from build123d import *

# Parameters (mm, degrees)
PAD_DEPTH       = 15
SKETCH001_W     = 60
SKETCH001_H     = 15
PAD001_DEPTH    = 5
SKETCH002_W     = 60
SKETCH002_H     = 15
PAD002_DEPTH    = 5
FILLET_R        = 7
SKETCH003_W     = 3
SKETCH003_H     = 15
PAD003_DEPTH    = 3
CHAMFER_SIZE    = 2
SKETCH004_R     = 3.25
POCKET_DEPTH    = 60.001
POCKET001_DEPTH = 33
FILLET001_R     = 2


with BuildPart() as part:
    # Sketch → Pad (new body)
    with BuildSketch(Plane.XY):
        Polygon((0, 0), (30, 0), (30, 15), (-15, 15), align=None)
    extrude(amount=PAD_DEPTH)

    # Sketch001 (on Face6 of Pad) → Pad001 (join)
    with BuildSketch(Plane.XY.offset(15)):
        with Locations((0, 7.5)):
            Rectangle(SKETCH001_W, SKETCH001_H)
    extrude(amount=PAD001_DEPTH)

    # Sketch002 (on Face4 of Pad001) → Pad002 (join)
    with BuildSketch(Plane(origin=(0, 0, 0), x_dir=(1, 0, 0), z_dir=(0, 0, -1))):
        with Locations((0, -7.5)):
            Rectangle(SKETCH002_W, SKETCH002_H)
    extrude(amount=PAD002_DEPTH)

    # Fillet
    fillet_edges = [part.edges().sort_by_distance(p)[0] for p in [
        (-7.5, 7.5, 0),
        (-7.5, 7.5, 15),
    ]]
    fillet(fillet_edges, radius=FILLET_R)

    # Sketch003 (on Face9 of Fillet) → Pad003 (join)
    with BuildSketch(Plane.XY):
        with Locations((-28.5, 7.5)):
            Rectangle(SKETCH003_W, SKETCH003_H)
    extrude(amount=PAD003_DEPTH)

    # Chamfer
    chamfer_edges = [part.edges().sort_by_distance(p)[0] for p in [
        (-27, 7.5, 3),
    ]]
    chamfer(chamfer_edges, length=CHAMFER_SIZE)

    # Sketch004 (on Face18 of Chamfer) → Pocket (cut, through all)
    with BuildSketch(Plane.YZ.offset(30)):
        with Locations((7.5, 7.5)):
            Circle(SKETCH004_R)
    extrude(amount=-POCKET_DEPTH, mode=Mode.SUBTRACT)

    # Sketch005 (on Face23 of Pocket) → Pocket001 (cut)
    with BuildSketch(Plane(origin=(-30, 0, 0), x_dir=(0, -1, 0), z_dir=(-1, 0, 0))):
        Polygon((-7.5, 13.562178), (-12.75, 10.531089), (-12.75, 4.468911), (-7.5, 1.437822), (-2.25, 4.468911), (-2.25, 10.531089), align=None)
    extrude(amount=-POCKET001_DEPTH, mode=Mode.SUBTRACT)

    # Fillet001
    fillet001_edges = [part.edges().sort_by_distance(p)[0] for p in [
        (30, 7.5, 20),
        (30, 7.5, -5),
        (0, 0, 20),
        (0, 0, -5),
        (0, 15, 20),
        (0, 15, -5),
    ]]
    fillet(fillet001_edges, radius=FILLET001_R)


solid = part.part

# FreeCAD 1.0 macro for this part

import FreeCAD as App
import Part
import Sketcher

V = App.Vector
Q = App.Units.Quantity


def edges_at(feature, points):
    """Names of the edges that pass closest to the given points."""
    edges = feature.Shape.Edges
    near = lambda p: min(range(len(edges)), key=lambda i: edges[i].distToShape(Part.Vertex(*p))[0])
    return sorted({f"Edge{near(p) + 1}" for p in points})

doc = App.newDocument("Part")
body = doc.addObject("PartDesign::Body", "Body")

# Sketch on XY plane
sketch1 = doc.addObject("Sketcher::SketchObject", "Sketch")
body.addObject(sketch1)
sketch1.AttachmentSupport = (doc.XY_Plane, [""])
sketch1.MapMode = "FlatFace"
sketch1.addGeometry([
    Part.LineSegment(V(0, 0, 0), V(30, 0, 0)),
    Part.LineSegment(V(30, 0, 0), V(30, 15, 0)),
    Part.LineSegment(V(30, 15, 0), V(-15, 15, 0)),
    Part.LineSegment(V(-15, 15, 0), V(0, 0, 0)),
], False)
sketch1.addConstraint([
    Sketcher.Constraint("Coincident", 0, 2, 1, 1),
    Sketcher.Constraint("Coincident", 1, 2, 2, 1),
    Sketcher.Constraint("Coincident", 2, 2, 3, 1),
    Sketcher.Constraint("Coincident", 3, 2, 0, 1),
    Sketcher.Constraint("Horizontal", 0),
    Sketcher.Constraint("Vertical", 1),
    Sketcher.Constraint("Horizontal", 2),
    Sketcher.Constraint("Coincident", 3, 2, -1, 1),
    Sketcher.Constraint("DistanceX", 0, 1, 0, 2, 30.0),
    Sketcher.Constraint("DistanceX", 2, 2, 2, 1, 45.0),
    Sketcher.Constraint("DistanceY", 1, 1, 1, 2, 15.0),
])
pad1 = doc.addObject("PartDesign::Pad", "Pad")
body.addObject(pad1)
pad1.Profile = sketch1
pad1.Length = 15

# Sketch on XY plane
sketch2 = doc.addObject("Sketcher::SketchObject", "Sketch001")
body.addObject(sketch2)
sketch2.AttachmentSupport = (doc.XY_Plane, [""])
sketch2.MapMode = "FlatFace"
sketch2.AttachmentOffset = App.Placement(V(0, 0, 15), App.Rotation())
sketch2.addGeometry([
    Part.LineSegment(V(-30, 15, 0), V(-30, 0, 0)),
    Part.LineSegment(V(-30, 0, 0), V(30, 0, 0)),
    Part.LineSegment(V(30, 0, 0), V(30, 15, 0)),
    Part.LineSegment(V(30, 15, 0), V(-30, 15, 0)),
], False)
sketch2.addConstraint([
    Sketcher.Constraint("Coincident", 0, 2, 1, 1),
    Sketcher.Constraint("Coincident", 1, 2, 2, 1),
    Sketcher.Constraint("Coincident", 2, 2, 3, 1),
    Sketcher.Constraint("Coincident", 3, 2, 0, 1),
    Sketcher.Constraint("Vertical", 0),
    Sketcher.Constraint("Horizontal", 1),
    Sketcher.Constraint("Vertical", 2),
    Sketcher.Constraint("Horizontal", 3),
    Sketcher.Constraint("Symmetric", 0, 2, 1, 2, -1, 1),
    Sketcher.Constraint("DistanceX", 1, 1, 1, 2, 60.0),
    Sketcher.Constraint("DistanceY", 0, 2, 0, 1, 15.0),
])
pad2 = doc.addObject("PartDesign::Pad", "Pad001")
body.addObject(pad2)
pad2.Profile = sketch2
pad2.Length = 5

# Sketch on XY plane
sketch3 = doc.addObject("Sketcher::SketchObject", "Sketch002")
body.addObject(sketch3)
sketch3.AttachmentSupport = (doc.XY_Plane, [""])
sketch3.MapMode = "FlatFace"
sketch3.addGeometry([
    Part.LineSegment(V(-30, 0, 0), V(-30, 15, 0)),
    Part.LineSegment(V(-30, 15, 0), V(30, 15, 0)),
    Part.LineSegment(V(30, 15, 0), V(30, 0, 0)),
    Part.LineSegment(V(30, 0, 0), V(-30, 0, 0)),
], False)
sketch3.addConstraint([
    Sketcher.Constraint("Coincident", 0, 2, 1, 1),
    Sketcher.Constraint("Coincident", 1, 2, 2, 1),
    Sketcher.Constraint("Coincident", 2, 2, 3, 1),
    Sketcher.Constraint("Coincident", 3, 2, 0, 1),
    Sketcher.Constraint("Vertical", 0),
    Sketcher.Constraint("Horizontal", 1),
    Sketcher.Constraint("Vertical", 2),
    Sketcher.Constraint("Horizontal", 3),
    Sketcher.Constraint("Symmetric", 2, 2, 3, 2, -1, 1),
    Sketcher.Constraint("DistanceX", 1, 1, 1, 2, 60.0),
    Sketcher.Constraint("DistanceY", 0, 1, 0, 2, 15.0),
])
pad3 = doc.addObject("PartDesign::Pad", "Pad002")
body.addObject(pad3)
pad3.Profile = sketch3
pad3.Length = 5
pad3.Reversed = True
doc.recompute()

fillet = doc.addObject("PartDesign::Fillet", "Fillet")
body.addObject(fillet)
fillet.Base = (pad3, edges_at(pad3, [(-7.5, 7.5, 0), (-7.5, 7.5, 15)]))
fillet.Radius = 7

# Sketch on XY plane
sketch4 = doc.addObject("Sketcher::SketchObject", "Sketch003")
body.addObject(sketch4)
sketch4.AttachmentSupport = (doc.XY_Plane, [""])
sketch4.MapMode = "FlatFace"
sketch4.addGeometry([
    Part.LineSegment(V(-30, 15, 0), V(-30, 0, 0)),
    Part.LineSegment(V(-30, 0, 0), V(-27, 0, 0)),
    Part.LineSegment(V(-27, 0, 0), V(-27, 15, 0)),
    Part.LineSegment(V(-27, 15, 0), V(-30, 15, 0)),
], False)
sketch4.addConstraint([
    Sketcher.Constraint("Coincident", 0, 2, 1, 1),
    Sketcher.Constraint("Coincident", 1, 2, 2, 1),
    Sketcher.Constraint("Coincident", 2, 2, 3, 1),
    Sketcher.Constraint("Coincident", 3, 2, 0, 1),
    Sketcher.Constraint("Vertical", 0),
    Sketcher.Constraint("Horizontal", 1),
    Sketcher.Constraint("Vertical", 2),
    Sketcher.Constraint("Horizontal", 3),
    Sketcher.Constraint("PointOnObject", 0, 2, -1),
    Sketcher.Constraint("DistanceX", 1, 1, 1, 2, 3.0),
    Sketcher.Constraint("DistanceY", 0, 2, 0, 1, 15.0),
    Sketcher.Constraint("DistanceX", 0, 2, -1, 1, 30.0),
])
pad4 = doc.addObject("PartDesign::Pad", "Pad003")
body.addObject(pad4)
pad4.Profile = sketch4
pad4.Length = 3
doc.recompute()

chamfer = doc.addObject("PartDesign::Chamfer", "Chamfer")
body.addObject(chamfer)
chamfer.Base = (pad4, edges_at(pad4, [(-27, 7.5, 3)]))
chamfer.Size = 2

# Sketch on YZ plane
sketch5 = doc.addObject("Sketcher::SketchObject", "Sketch004")
body.addObject(sketch5)
sketch5.AttachmentSupport = (doc.YZ_Plane, [""])
sketch5.MapMode = "FlatFace"
sketch5.AttachmentOffset = App.Placement(V(0, 0, 30), App.Rotation())
sketch5.addGeometry(Part.Circle(V(7.5, 7.5, 0), V(0, 0, 1), 3.25), False)
sketch5.addConstraint([
    Sketcher.Constraint("Diameter", 0, 6.5),
    Sketcher.Constraint("DistanceX", -1, 1, 0, 3, 7.5),
    Sketcher.Constraint("DistanceY", -1, 1, 0, 3, 7.5),
])
pocket1 = doc.addObject("PartDesign::Pocket", "Pocket")
body.addObject(pocket1)
pocket1.Profile = sketch5
pocket1.Type = "ThroughAll"

# Sketch on YZ plane
sketch6 = doc.addObject("Sketcher::SketchObject", "Sketch005")
body.addObject(sketch6)
sketch6.AttachmentSupport = (doc.YZ_Plane, [""])
sketch6.MapMode = "FlatFace"
sketch6.AttachmentOffset = App.Placement(V(0, 0, -30), App.Rotation())
sketch6.addGeometry([
    Part.LineSegment(V(7.5, 13.562178, 0), V(12.75, 10.531089, 0)),  # 0
    Part.LineSegment(V(12.75, 10.531089, 0), V(12.75, 4.468911, 0)),  # 1
    Part.LineSegment(V(12.75, 4.468911, 0), V(7.5, 1.437822, 0)),  # 2
    Part.LineSegment(V(7.5, 1.437822, 0), V(2.25, 4.468911, 0)),  # 3
    Part.LineSegment(V(2.25, 4.468911, 0), V(2.25, 10.531089, 0)),  # 4
    Part.LineSegment(V(2.25, 10.531089, 0), V(7.5, 13.562178, 0)),  # 5
], False)
sketch6.addConstraint([
    Sketcher.Constraint("Coincident", 0, 2, 1, 1),
    Sketcher.Constraint("Coincident", 1, 2, 2, 1),
    Sketcher.Constraint("Coincident", 2, 2, 3, 1),
    Sketcher.Constraint("Coincident", 3, 2, 4, 1),
    Sketcher.Constraint("Coincident", 4, 2, 5, 1),
    Sketcher.Constraint("Coincident", 5, 2, 0, 1),
    Sketcher.Constraint("Vertical", 1),
    Sketcher.Constraint("Vertical", 4),
    Sketcher.Constraint("Parallel", 0, 3),
    Sketcher.Constraint("Parallel", 2, 5),
    Sketcher.Constraint("Horizontal", 1, 2, 3, 2),
    Sketcher.Constraint("Horizontal", 0, 2, 4, 2),
    Sketcher.Constraint("Vertical", 2, 2, 5, 2),
    Sketcher.Constraint("Angle", 0, Q("-30.000001 deg")),
    Sketcher.Constraint("DistanceX", -1, 1, 2, 2, 7.5),
    Sketcher.Constraint("DistanceX", 3, 2, 1, 2, 10.5),
    Sketcher.Constraint("DistanceY", 1, 2, 1, 1, 6.062178),
    Sketcher.Constraint("DistanceY", -1, 1, 0, 2, 10.531089),
])
pocket2 = doc.addObject("PartDesign::Pocket", "Pocket001")
body.addObject(pocket2)
pocket2.Profile = sketch6
pocket2.Length = 33
pocket2.Reversed = True
doc.recompute()

fillet2 = doc.addObject("PartDesign::Fillet", "Fillet001")
body.addObject(fillet2)
fillet2.Base = (pocket2, edges_at(pocket2, [
    (30, 7.5, 20),
    (30, 7.5, -5),
    (0, 0, 20),
    (0, 0, -5),
    (0, 15, 20),
    (0, 15, -5),
]))
fillet2.Radius = 2

doc.recompute()
